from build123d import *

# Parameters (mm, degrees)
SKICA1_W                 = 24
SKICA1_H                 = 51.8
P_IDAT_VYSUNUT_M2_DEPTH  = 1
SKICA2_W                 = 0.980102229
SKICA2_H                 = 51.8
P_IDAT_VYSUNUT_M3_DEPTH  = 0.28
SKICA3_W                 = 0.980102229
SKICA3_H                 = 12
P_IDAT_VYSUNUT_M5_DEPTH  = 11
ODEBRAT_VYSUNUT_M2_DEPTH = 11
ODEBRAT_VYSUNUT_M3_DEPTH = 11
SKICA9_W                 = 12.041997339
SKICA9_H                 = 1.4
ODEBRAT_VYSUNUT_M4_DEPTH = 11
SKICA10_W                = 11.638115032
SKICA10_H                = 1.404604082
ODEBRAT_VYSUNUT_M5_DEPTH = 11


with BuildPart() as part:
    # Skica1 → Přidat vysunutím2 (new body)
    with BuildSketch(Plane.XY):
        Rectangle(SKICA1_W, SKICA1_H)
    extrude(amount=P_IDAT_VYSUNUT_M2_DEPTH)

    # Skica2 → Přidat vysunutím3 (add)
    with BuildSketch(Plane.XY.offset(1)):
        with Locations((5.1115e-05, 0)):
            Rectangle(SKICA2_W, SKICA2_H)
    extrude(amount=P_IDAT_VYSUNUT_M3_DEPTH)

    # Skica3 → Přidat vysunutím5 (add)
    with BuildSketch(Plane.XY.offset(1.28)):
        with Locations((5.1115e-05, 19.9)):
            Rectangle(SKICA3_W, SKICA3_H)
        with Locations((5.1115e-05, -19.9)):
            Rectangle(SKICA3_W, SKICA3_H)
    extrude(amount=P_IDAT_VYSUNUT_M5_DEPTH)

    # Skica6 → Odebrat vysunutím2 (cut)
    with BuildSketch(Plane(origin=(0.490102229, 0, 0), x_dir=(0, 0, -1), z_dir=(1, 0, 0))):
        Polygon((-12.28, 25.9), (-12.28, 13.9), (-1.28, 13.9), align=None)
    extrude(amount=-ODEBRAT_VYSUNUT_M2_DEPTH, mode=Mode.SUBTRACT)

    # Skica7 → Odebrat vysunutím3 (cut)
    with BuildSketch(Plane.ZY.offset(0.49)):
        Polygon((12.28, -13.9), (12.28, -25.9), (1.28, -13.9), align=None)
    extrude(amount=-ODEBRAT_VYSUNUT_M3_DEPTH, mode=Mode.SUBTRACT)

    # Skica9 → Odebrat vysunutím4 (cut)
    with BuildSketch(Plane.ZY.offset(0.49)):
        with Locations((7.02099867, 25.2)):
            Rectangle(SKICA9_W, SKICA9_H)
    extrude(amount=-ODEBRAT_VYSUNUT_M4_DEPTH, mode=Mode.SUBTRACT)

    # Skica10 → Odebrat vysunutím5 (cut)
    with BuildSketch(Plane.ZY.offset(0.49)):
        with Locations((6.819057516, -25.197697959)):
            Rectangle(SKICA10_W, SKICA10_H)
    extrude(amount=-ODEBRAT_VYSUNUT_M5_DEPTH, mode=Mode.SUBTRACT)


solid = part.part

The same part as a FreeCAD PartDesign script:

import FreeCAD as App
import Part
import Sketcher
Q = App.Units.Quantity


def add_polygon(sketch, points):
    """Adds a closed chain of lines whose ends are joined by coincident constraints."""
    first, n = sketch.GeometryCount, len(points)
    for a, b in zip(points, points[1:] + points[:1]):
        sketch.addGeometry(Part.LineSegment(App.Vector(*a, 0), App.Vector(*b, 0)), False)
    for i in range(n):
        sketch.addConstraint(Sketcher.Constraint("Coincident", first + i, 2, first + (i + 1) % n, 1))

doc = App.newDocument("Part")
body = doc.addObject("PartDesign::Body", "Body")

sketch1 = body.newObject("Sketcher::SketchObject", "Sketch")
sketch1.AttachmentSupport = (doc.getObject("XY_Plane"), [""])
sketch1.MapMode = "FlatFace"
add_polygon(sketch1, [(-12, 25.9), (-12, -25.9), (12, -25.9), (12, 25.9)])
sketch1.addConstraint([
    Sketcher.Constraint("Vertical", 0),
    Sketcher.Constraint("Horizontal", 1),
    Sketcher.Constraint("Vertical", 2),
    Sketcher.Constraint("Horizontal", 3),
    Sketcher.Constraint("Symmetric", 0, 2, 2, 2, -1, 1),
    Sketcher.Constraint("DistanceX", 1, 1, 1, 2, Q("24 mm")),
    Sketcher.Constraint("DistanceY", 0, 2, 0, 1, Q("51.8 mm")),
])
pad1 = body.newObject("PartDesign::Pad", "Pad")
pad1.Profile = sketch1
pad1.Length = 1

sketch2 = body.newObject("Sketcher::SketchObject", "Sketch001")
sketch2.AttachmentSupport = (doc.getObject("XY_Plane"), [""])
sketch2.MapMode = "FlatFace"
sketch2.AttachmentOffset = App.Placement(App.Vector(0, 0, 1), App.Rotation())
add_polygon(sketch2, [(-0.49, 25.9), (-0.49, -25.9), (0.490102, -25.9), (0.490102, 25.9)])
sketch2.addConstraint([
    Sketcher.Constraint("Vertical", 0),
    Sketcher.Constraint("Horizontal", 1),
    Sketcher.Constraint("Vertical", 2),
    Sketcher.Constraint("Horizontal", 3),
    Sketcher.Constraint("DistanceY", 0, 2, 0, 1, Q("51.8 mm")),
    Sketcher.Constraint("DistanceY", 0, 2, -1, 1, Q("25.9 mm")),
    Sketcher.Constraint("DistanceX", 0, 2, -1, 1, Q("0.49 mm")),
    Sketcher.Constraint("DistanceX", 1, 1, 1, 2, Q("0.980102 mm")),
])
pad2 = body.newObject("PartDesign::Pad", "Pad001")
pad2.Profile = sketch2
pad2.Length = 0.28

sketch3 = body.newObject("Sketcher::SketchObject", "Sketch002")
sketch3.AttachmentSupport = (doc.getObject("XY_Plane"), [""])
sketch3.MapMode = "FlatFace"
sketch3.AttachmentOffset = App.Placement(App.Vector(0, 0, 1.28), App.Rotation())
add_polygon(sketch3, [(-0.49, 25.9), (-0.49, 13.9), (0.490102, 13.9), (0.490102, 25.9)])
add_polygon(sketch3, [(-0.49, -13.9), (-0.49, -25.9), (0.490102, -25.9), (0.490102, -13.9)])
sketch3.addConstraint([
    Sketcher.Constraint("Vertical", 0),
    Sketcher.Constraint("Horizontal", 1),
    Sketcher.Constraint("Vertical", 2),
    Sketcher.Constraint("Horizontal", 3),
    Sketcher.Constraint("Vertical", 4),
    Sketcher.Constraint("Horizontal", 5),
    Sketcher.Constraint("Vertical", 6),
    Sketcher.Constraint("Horizontal", 7),
    Sketcher.Constraint("Symmetric", 3, 2, 4, 2, -1),
    Sketcher.Constraint("Symmetric", 1, 2, 6, 2, -1),
    Sketcher.Constraint("DistanceY", 0, 2, 0, 1, Q("12 mm")),
    Sketcher.Constraint("DistanceY", -1, 1, 0, 2, Q("13.9 mm")),
    Sketcher.Constraint("DistanceX", 0, 2, -1, 1, Q("0.49 mm")),
    Sketcher.Constraint("DistanceX", 1, 1, 1, 2, Q("0.980102 mm")),
])
pad3 = body.newObject("PartDesign::Pad", "Pad002")
pad3.Profile = sketch3
pad3.Length = 11

sketch4 = body.newObject("Sketcher::SketchObject", "Sketch003")
sketch4.AttachmentSupport = (doc.getObject("YZ_Plane"), [""])
sketch4.MapMode = "FlatFace"
sketch4.AttachmentOffset = App.Placement(App.Vector(0, 0, 0.490102), App.Rotation())
add_polygon(sketch4, [(25.9, 12.28), (13.9, 12.28), (13.9, 1.28)])
sketch4.addConstraint([
    Sketcher.Constraint("Horizontal", 0),
    Sketcher.Constraint("Vertical", 1),
    Sketcher.Constraint("DistanceX", 0, 2, 0, 1, Q("12 mm")),
    Sketcher.Constraint("DistanceY", 1, 2, 1, 1, Q("11 mm")),
    Sketcher.Constraint("DistanceX", -1, 1, 0, 2, Q("13.9 mm")),
    Sketcher.Constraint("DistanceY", -1, 1, 0, 2, Q("12.28 mm")),
])
pocket1 = body.newObject("PartDesign::Pocket", "Pocket")
pocket1.Profile = sketch4
pocket1.Length = 11

sketch5 = body.newObject("Sketcher::SketchObject", "Sketch004")
sketch5.AttachmentSupport = (doc.getObject("YZ_Plane"), [""])
sketch5.MapMode = "FlatFace"
sketch5.AttachmentOffset = App.Placement(App.Vector(0, 0, -0.49), App.Rotation())
add_polygon(sketch5, [(-25.9, 12.28), (-13.9, 12.28), (-13.9, 1.28)])
sketch5.addConstraint([
    Sketcher.Constraint("Horizontal", 0),
    Sketcher.Constraint("Vertical", 1),
    Sketcher.Constraint("DistanceX", 0, 1, 0, 2, Q("12 mm")),
    Sketcher.Constraint("DistanceY", 1, 2, 1, 1, Q("11 mm")),
    Sketcher.Constraint("DistanceX", 0, 2, -1, 1, Q("13.9 mm")),
    Sketcher.Constraint("DistanceY", -1, 1, 0, 2, Q("12.28 mm")),
])
pocket2 = body.newObject("PartDesign::Pocket", "Pocket001")
pocket2.Profile = sketch5
pocket2.Length = 11
pocket2.Reversed = True

sketch6 = body.newObject("Sketcher::SketchObject", "Sketch005")
sketch6.AttachmentSupport = (doc.getObject("YZ_Plane"), [""])
sketch6.MapMode = "FlatFace"
sketch6.AttachmentOffset = App.Placement(App.Vector(0, 0, -0.49), App.Rotation())
add_polygon(sketch6, [(25.9, 1), (24.5, 1), (24.5, 13.041997), (25.9, 13.041997)])
sketch6.addConstraint([
    Sketcher.Constraint("Horizontal", 0),
    Sketcher.Constraint("Vertical", 1),
    Sketcher.Constraint("Horizontal", 2),
    Sketcher.Constraint("Vertical", 3),
    Sketcher.Constraint("DistanceX", 0, 2, 0, 1, Q("1.4 mm")),
    Sketcher.Constraint("DistanceY", -1, 1, 0, 2, Q("1 mm")),
    Sketcher.Constraint("DistanceX", -1, 1, 0, 2, Q("24.5 mm")),
    Sketcher.Constraint("DistanceY", 1, 1, 1, 2, Q("12.041997 mm")),
])
pocket3 = body.newObject("PartDesign::Pocket", "Pocket002")
pocket3.Profile = sketch6
pocket3.Length = 11
pocket3.Reversed = True

sketch7 = body.newObject("Sketcher::SketchObject", "Sketch006")
sketch7.AttachmentSupport = (doc.getObject("YZ_Plane"), [""])
sketch7.MapMode = "FlatFace"
sketch7.AttachmentOffset = App.Placement(App.Vector(0, 0, -0.49), App.Rotation())
add_polygon(sketch7, [(-24.495396, 1), (-25.9, 1), (-25.9, 12.638115), (-24.495396, 12.638115)])
sketch7.addConstraint([
    Sketcher.Constraint("Horizontal", 0),
    Sketcher.Constraint("Vertical", 1),
    Sketcher.Constraint("Horizontal", 2),
    Sketcher.Constraint("Vertical", 3),
    Sketcher.Constraint("DistanceY", -1, 1, 0, 2, Q("1 mm")),
    Sketcher.Constraint("DistanceX", 0, 2, -1, 1, Q("25.9 mm")),
    Sketcher.Constraint("DistanceX", 0, 2, 0, 1, Q("1.404604 mm")),
    Sketcher.Constraint("DistanceY", 1, 1, 1, 2, Q("11.638115 mm")),
])
pocket4 = body.newObject("PartDesign::Pocket", "Pocket003")
pocket4.Profile = sketch7
pocket4.Length = 11
pocket4.Reversed = True

doc.recompute()
